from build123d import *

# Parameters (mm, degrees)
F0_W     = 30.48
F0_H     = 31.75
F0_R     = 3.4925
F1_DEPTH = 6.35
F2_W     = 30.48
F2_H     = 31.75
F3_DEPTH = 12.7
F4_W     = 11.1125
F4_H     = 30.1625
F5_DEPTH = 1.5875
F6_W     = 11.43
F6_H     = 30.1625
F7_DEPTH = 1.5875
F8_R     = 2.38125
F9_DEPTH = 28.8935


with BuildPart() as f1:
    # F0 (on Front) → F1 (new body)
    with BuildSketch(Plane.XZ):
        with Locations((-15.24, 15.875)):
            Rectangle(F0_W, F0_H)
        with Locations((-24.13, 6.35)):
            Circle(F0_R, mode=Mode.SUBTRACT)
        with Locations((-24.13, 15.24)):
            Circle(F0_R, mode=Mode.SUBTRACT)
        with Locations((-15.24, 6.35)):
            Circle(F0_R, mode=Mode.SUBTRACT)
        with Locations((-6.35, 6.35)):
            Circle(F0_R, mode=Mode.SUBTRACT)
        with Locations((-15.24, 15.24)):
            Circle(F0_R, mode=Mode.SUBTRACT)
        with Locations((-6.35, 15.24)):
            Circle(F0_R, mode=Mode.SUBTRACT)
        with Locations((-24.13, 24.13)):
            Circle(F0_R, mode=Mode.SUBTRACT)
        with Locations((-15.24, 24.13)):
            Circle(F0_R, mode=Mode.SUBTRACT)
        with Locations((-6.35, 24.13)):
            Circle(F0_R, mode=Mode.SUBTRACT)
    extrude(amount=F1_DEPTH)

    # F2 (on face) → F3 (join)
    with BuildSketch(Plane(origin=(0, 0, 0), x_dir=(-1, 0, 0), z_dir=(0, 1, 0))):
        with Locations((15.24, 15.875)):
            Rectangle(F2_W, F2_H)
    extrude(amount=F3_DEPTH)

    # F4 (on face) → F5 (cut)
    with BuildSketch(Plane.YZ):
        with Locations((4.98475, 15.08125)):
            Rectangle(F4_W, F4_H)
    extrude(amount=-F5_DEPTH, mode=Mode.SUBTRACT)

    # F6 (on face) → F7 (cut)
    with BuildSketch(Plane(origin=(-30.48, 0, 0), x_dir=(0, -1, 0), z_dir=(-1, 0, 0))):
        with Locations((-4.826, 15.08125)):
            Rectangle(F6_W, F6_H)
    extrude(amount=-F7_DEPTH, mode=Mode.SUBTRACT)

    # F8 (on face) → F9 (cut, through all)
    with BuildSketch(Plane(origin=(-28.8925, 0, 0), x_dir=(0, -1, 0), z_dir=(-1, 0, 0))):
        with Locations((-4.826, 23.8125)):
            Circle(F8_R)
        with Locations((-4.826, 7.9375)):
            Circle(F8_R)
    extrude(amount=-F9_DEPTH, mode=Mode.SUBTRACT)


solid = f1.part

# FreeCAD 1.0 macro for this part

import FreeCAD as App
import Part
import Sketcher
from FreeCAD import Vector
Q = App.Units.Quantity

doc = App.newDocument("Part")
body = doc.addObject("PartDesign::Body", "Body")

# Sketch on XZ plane
sketch1 = doc.addObject("Sketcher::SketchObject", "Sketch")
body.addObject(sketch1)
sketch1.AttachmentSupport = (doc.XZ_Plane, [""])
sketch1.MapMode = "FlatFace"
sketch1.addGeometry([
    Part.LineSegment(Vector(-30.5, 31.8, 0), Vector(-30.5, 0, 0)),  # 0
    Part.LineSegment(Vector(-30.5, 0, 0), Vector(0, 0, 0)),  # 1
    Part.LineSegment(Vector(0, 0, 0), Vector(0, 31.8, 0)),  # 2
    Part.LineSegment(Vector(0, 31.8, 0), Vector(-30.5, 31.8, 0)),  # 3
    Part.Circle(Vector(-24.1, 6.3, 0), Vector(0, 0, 1), 3.5),  # 4
    Part.Circle(Vector(-15.2, 6.3, 0), Vector(0, 0, 1), 3.5),  # 5
    Part.Circle(Vector(-24.1, 15.2, 0), Vector(0, 0, 1), 3.5),  # 6
    Part.Circle(Vector(-15.2, 15.2, 0), Vector(0, 0, 1), 3.5),  # 7
    Part.Circle(Vector(-6.3, 6.3, 0), Vector(0, 0, 1), 3.5),  # 8
    Part.Circle(Vector(-6.3, 15.2, 0), Vector(0, 0, 1), 3.5),  # 9
    Part.Circle(Vector(-24.1, 24.1, 0), Vector(0, 0, 1), 3.5),  # 10
    Part.Circle(Vector(-15.2, 24.1, 0), Vector(0, 0, 1), 3.5),  # 11
    Part.Circle(Vector(-6.3, 24.1, 0), Vector(0, 0, 1), 3.5),  # 12
], False)
sketch1.addConstraint([
    Sketcher.Constraint("Coincident", 0, 2, 1, 1),
    Sketcher.Constraint("Coincident", 1, 2, 2, 1),
    Sketcher.Constraint("Coincident", 2, 2, 3, 1),
    Sketcher.Constraint("Coincident", 3, 2, 0, 1),
    Sketcher.Constraint("Vertical", 0),
    Sketcher.Constraint("Horizontal", 1),
    Sketcher.Constraint("Vertical", 2),
    Sketcher.Constraint("Horizontal", 3),
    Sketcher.Constraint("Coincident", 1, 2, -1, 1),
    Sketcher.Constraint("Equal", 4, 5),
    Sketcher.Constraint("Equal", 5, 6),
    Sketcher.Constraint("Equal", 6, 7),
    Sketcher.Constraint("Equal", 7, 8),
    Sketcher.Constraint("Equal", 8, 9),
    Sketcher.Constraint("Equal", 9, 10),
    Sketcher.Constraint("Equal", 10, 11),
    Sketcher.Constraint("Equal", 11, 12),
    Sketcher.Constraint("Horizontal", 4, 3, 5, 3),
    Sketcher.Constraint("Horizontal", 6, 3, 7, 3),
    Sketcher.Constraint("Horizontal", 5, 3, 8, 3),
    Sketcher.Constraint("Horizontal", 7, 3, 9, 3),
    Sketcher.Constraint("Horizontal", 10, 3, 11, 3),
    Sketcher.Constraint("Horizontal", 11, 3, 12, 3),
    Sketcher.Constraint("Vertical", 4, 3, 6, 3),
    Sketcher.Constraint("Vertical", 5, 3, 7, 3),
    Sketcher.Constraint("Vertical", 8, 3, 9, 3),
    Sketcher.Constraint("Vertical", 6, 3, 10, 3),
    Sketcher.Constraint("Vertical", 7, 3, 11, 3),
    Sketcher.Constraint("Vertical", 9, 3, 12, 3),
    Sketcher.Constraint("Diameter", 4, Q("0.275 in")),
    Sketcher.Constraint("DistanceX", 1, 1, 1, 2, Q("1.2 in")),
    Sketcher.Constraint("DistanceY", 0, 2, 0, 1, Q("1.25 in")),
    Sketcher.Constraint("DistanceX", 5, 3, -1, 1, Q("0.6 in")),
    Sketcher.Constraint("DistanceY", -1, 1, 6, 3, Q("0.6 in")),
    Sketcher.Constraint("DistanceX", 4, 3, 8, 3, Q("0.7 in")),
    Sketcher.Constraint("DistanceY", 4, 3, 10, 3, Q("0.7 in")),
    Sketcher.Constraint("DistanceY", 12, 3, 2, 2, Q("0.3 in")),
    Sketcher.Constraint("DistanceX", 4, 3, -1, 1, Q("0.95 in")),
])
pad1 = doc.addObject("PartDesign::Pad", "Pad")
body.addObject(pad1)
pad1.Profile = sketch1
pad1.Length = Q("0.25 in")

# Sketch on XZ plane
sketch2 = doc.addObject("Sketcher::SketchObject", "Sketch001")
body.addObject(sketch2)
sketch2.AttachmentSupport = (doc.XZ_Plane, [""])
sketch2.MapMode = "FlatFace"
sketch2.addGeometry([
    Part.LineSegment(Vector(0, 32, 0), Vector(0, 0, 0)),
    Part.LineSegment(Vector(0, 0, 0), Vector(-30, 0, 0)),
    Part.LineSegment(Vector(-30, 0, 0), Vector(-30, 32, 0)),
    Part.LineSegment(Vector(-30, 32, 0), Vector(0, 32, 0)),
], False)
sketch2.addConstraint([
    Sketcher.Constraint("Coincident", 0, 2, 1, 1),
    Sketcher.Constraint("Coincident", 1, 2, 2, 1),
    Sketcher.Constraint("Coincident", 2, 2, 3, 1),
    Sketcher.Constraint("Coincident", 3, 2, 0, 1),
    Sketcher.Constraint("Vertical", 0),
    Sketcher.Constraint("Horizontal", 1),
    Sketcher.Constraint("Vertical", 2),
    Sketcher.Constraint("Horizontal", 3),
    Sketcher.Constraint("Coincident", 0, 2, -1, 1),
    Sketcher.Constraint("DistanceX", 1, 2, 1, 1, Q("1.2 in")),
    Sketcher.Constraint("DistanceY", 0, 2, 0, 1, Q("1.25 in")),
])
pad2 = doc.addObject("PartDesign::Pad", "Pad001")
body.addObject(pad2)
pad2.Profile = sketch2
pad2.Length = Q("0.5 in")
pad2.Reversed = True

# Sketch on YZ plane
sketch3 = doc.addObject("Sketcher::SketchObject", "Sketch002")
body.addObject(sketch3)
sketch3.AttachmentSupport = (doc.YZ_Plane, [""])
sketch3.MapMode = "FlatFace"
sketch3.addGeometry([
    Part.LineSegment(Vector(-1, 30, 0), Vector(-1, 0, 0)),
    Part.LineSegment(Vector(-1, 0, 0), Vector(11, 0, 0)),
    Part.LineSegment(Vector(11, 0, 0), Vector(11, 30, 0)),
    Part.LineSegment(Vector(11, 30, 0), Vector(-1, 30, 0)),
], False)
sketch3.addConstraint([
    Sketcher.Constraint("Coincident", 0, 2, 1, 1),
    Sketcher.Constraint("Coincident", 1, 2, 2, 1),
    Sketcher.Constraint("Coincident", 2, 2, 3, 1),
    Sketcher.Constraint("Coincident", 3, 2, 0, 1),
    Sketcher.Constraint("Vertical", 0),
    Sketcher.Constraint("Horizontal", 1),
    Sketcher.Constraint("Vertical", 2),
    Sketcher.Constraint("Horizontal", 3),
    Sketcher.Constraint("PointOnObject", 0, 2, -1),
    Sketcher.Constraint("DistanceX", 1, 1, 1, 2, Q("0.4375 in")),
    Sketcher.Constraint("DistanceY", 0, 2, 0, 1, Q("1.1875 in")),
    Sketcher.Constraint("DistanceX", -1, 1, 1, 2, Q("0.415 in")),
])
pocket1 = doc.addObject("PartDesign::Pocket", "Pocket")
body.addObject(pocket1)
pocket1.Profile = sketch3
pocket1.Length = Q("0.0625 in")

# Sketch on YZ plane
sketch4 = doc.addObject("Sketcher::SketchObject", "Sketch003")
body.addObject(sketch4)
sketch4.AttachmentSupport = (doc.YZ_Plane, [""])
sketch4.MapMode = "FlatFace"
sketch4.AttachmentOffset = App.Placement(Vector(0, 0, -1.2 * 25.4), App.Rotation())
sketch4.addGeometry([
    Part.LineSegment(Vector(11, 30, 0), Vector(11, 0, 0)),
    Part.LineSegment(Vector(11, 0, 0), Vector(-1, 0, 0)),
    Part.LineSegment(Vector(-1, 0, 0), Vector(-1, 30, 0)),
    Part.LineSegment(Vector(-1, 30, 0), Vector(11, 30, 0)),
], False)
sketch4.addConstraint([
    Sketcher.Constraint("Coincident", 0, 2, 1, 1),
    Sketcher.Constraint("Coincident", 1, 2, 2, 1),
    Sketcher.Constraint("Coincident", 2, 2, 3, 1),
    Sketcher.Constraint("Coincident", 3, 2, 0, 1),
    Sketcher.Constraint("Vertical", 0),
    Sketcher.Constraint("Horizontal", 1),
    Sketcher.Constraint("Vertical", 2),
    Sketcher.Constraint("Horizontal", 3),
    Sketcher.Constraint("PointOnObject", 0, 2, -1),
    Sketcher.Constraint("DistanceX", 1, 2, 1, 1, Q("0.45 in")),
    Sketcher.Constraint("DistanceY", 0, 2, 0, 1, Q("1.1875 in")),
    Sketcher.Constraint("DistanceX", -1, 1, 0, 2, Q("0.415 in")),
])
pocket2 = doc.addObject("PartDesign::Pocket", "Pocket001")
body.addObject(pocket2)
pocket2.Profile = sketch4
pocket2.Length = Q("0.0625 in")
pocket2.Reversed = True

# Sketch on YZ plane
sketch5 = doc.addObject("Sketcher::SketchObject", "Sketch004")
body.addObject(sketch5)
sketch5.AttachmentSupport = (doc.YZ_Plane, [""])
sketch5.MapMode = "FlatFace"
sketch5.AttachmentOffset = App.Placement(Vector(0, 0, -1.1375 * 25.4), App.Rotation())
sketch5.addGeometry([
    Part.Circle(Vector(4.8, 23.8, 0), Vector(0, 0, 1), 2.4),
    Part.Circle(Vector(4.8, 7.9, 0), Vector(0, 0, 1), 2.4),
], False)
sketch5.addConstraint([
    Sketcher.Constraint("Equal", 0, 1),
    Sketcher.Constraint("Vertical", 0, 3, 1, 3),
    Sketcher.Constraint("Diameter", 0, Q("0.1875 in")),
    Sketcher.Constraint("DistanceX", -1, 1, 0, 3, Q("0.19 in")),
    Sketcher.Constraint("DistanceY", -1, 1, 0, 3, Q("0.9375 in")),
    Sketcher.Constraint("DistanceY", -1, 1, 1, 3, Q("0.3125 in")),
])
pocket3 = doc.addObject("PartDesign::Pocket", "Pocket002")
body.addObject(pocket3)
pocket3.Profile = sketch5
pocket3.Type = "ThroughAll"
pocket3.Reversed = True

doc.recompute()
